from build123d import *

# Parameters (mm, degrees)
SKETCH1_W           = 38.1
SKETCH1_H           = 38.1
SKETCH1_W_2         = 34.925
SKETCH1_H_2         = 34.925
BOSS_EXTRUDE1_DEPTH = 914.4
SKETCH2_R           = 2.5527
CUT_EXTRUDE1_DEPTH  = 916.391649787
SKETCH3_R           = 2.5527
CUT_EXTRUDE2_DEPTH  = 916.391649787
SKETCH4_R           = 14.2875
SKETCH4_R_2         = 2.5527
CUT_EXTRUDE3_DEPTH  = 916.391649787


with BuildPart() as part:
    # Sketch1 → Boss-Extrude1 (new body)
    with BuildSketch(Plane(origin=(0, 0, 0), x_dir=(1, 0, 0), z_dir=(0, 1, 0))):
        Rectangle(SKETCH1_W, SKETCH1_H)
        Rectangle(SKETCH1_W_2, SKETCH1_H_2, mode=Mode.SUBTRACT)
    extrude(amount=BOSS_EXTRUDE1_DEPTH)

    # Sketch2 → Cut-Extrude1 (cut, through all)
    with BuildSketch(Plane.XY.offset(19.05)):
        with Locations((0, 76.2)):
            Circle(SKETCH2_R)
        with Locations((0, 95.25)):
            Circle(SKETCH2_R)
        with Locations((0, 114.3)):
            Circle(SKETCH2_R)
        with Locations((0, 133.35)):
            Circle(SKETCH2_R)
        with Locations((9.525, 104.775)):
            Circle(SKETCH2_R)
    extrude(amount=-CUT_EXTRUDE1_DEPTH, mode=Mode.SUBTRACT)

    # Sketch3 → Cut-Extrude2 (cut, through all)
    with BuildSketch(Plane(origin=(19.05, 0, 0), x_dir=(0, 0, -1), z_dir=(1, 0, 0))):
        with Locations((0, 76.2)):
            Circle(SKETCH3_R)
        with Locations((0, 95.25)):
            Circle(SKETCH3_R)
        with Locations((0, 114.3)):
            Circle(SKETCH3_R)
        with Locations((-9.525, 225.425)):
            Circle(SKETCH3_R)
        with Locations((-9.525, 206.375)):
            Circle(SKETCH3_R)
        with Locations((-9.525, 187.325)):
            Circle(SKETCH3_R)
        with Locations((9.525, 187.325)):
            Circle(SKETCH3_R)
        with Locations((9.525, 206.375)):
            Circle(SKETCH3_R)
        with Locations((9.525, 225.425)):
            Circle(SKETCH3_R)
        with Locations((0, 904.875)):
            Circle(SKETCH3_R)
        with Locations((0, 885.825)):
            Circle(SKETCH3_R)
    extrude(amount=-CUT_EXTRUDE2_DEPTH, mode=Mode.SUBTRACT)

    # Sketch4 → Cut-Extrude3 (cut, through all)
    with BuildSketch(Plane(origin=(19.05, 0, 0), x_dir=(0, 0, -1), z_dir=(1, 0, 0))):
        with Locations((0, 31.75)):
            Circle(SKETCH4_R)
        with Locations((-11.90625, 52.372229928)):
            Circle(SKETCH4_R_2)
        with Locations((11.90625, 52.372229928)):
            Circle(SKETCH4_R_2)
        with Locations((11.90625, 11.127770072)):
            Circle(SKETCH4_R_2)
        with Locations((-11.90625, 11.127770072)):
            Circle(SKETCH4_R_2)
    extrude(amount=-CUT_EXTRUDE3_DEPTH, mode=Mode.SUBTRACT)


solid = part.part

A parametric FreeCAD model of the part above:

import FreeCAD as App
import Part
import Sketcher

V = App.Vector
Q = App.Units.Quantity

doc = App.newDocument("Part")
params = doc.addObject("Spreadsheet::Sheet", "Params")
for row, (alias, value) in enumerate([
    ("sketch1_width", "1.5 in"),
    ("sketch1_width2", "1.375 in"),
    ("pad1_length", "36 in"),
    ("sketch2_diameter", "0.201 in"),
    ("sketch3_diameter", "0.201 in"),
    ("sketch4_diameter", "1.125 in"),
    ("sketch4_diameter2", "0.201 in"),
], start=1):
    params.set(f"A{row}", alias)
    params.set(f"B{row}", "=" + value)
    params.setAlias(f"B{row}", alias)

body = doc.addObject("PartDesign::Body", "Body")

# Sketch on XZ plane
sketch1 = doc.addObject("Sketcher::SketchObject", "Sketch")
body.addObject(sketch1)
sketch1.AttachmentSupport = (doc.XZ_Plane, [""])
sketch1.MapMode = "FlatFace"
sketch1.addGeometry([
    Part.LineSegment(V(-19, -19, 0), V(-19, 19, 0)),  # 0
    Part.LineSegment(V(-19, 19, 0), V(19, 19, 0)),  # 1
    Part.LineSegment(V(19, 19, 0), V(19, -19, 0)),  # 2
    Part.LineSegment(V(19, -19, 0), V(-19, -19, 0)),  # 3
    Part.LineSegment(V(17, 17, 0), V(-17, 17, 0)),  # 4
    Part.LineSegment(V(-17, 17, 0), V(-17, -17, 0)),  # 5
    Part.LineSegment(V(-17, -17, 0), V(17, -17, 0)),  # 6
    Part.LineSegment(V(17, -17, 0), V(17, 17, 0)),  # 7
], False)
sketch1.addConstraint([
    Sketcher.Constraint("Coincident", 0, 2, 1, 1),
    Sketcher.Constraint("Coincident", 1, 2, 2, 1),
    Sketcher.Constraint("Coincident", 2, 2, 3, 1),
    Sketcher.Constraint("Coincident", 3, 2, 0, 1),
    Sketcher.Constraint("Coincident", 4, 2, 5, 1),
    Sketcher.Constraint("Coincident", 5, 2, 6, 1),
    Sketcher.Constraint("Coincident", 6, 2, 7, 1),
    Sketcher.Constraint("Coincident", 7, 2, 4, 1),
    Sketcher.Constraint("Vertical", 0),
    Sketcher.Constraint("Horizontal", 1),
    Sketcher.Constraint("Vertical", 2),
    Sketcher.Constraint("Horizontal", 3),
    Sketcher.Constraint("Horizontal", 4),
    Sketcher.Constraint("Vertical", 5),
    Sketcher.Constraint("Horizontal", 6),
    Sketcher.Constraint("Vertical", 7),
    Sketcher.Constraint("Symmetric", 0, 2, 2, 2, -1, 1),
    Sketcher.Constraint("Symmetric", 4, 2, 6, 2, -1, 1),
    Sketcher.Constraint("Equal", 3, 0),
    Sketcher.Constraint("Equal", 6, 5),
    Sketcher.Constraint("DistanceX", 1, 1, 1, 2, Q("1.5 in")),
    Sketcher.Constraint("DistanceX", 4, 2, 4, 1, Q("1.375 in")),
])
sketch1.setExpression("Constraints[20]", "Params.sketch1_width")
sketch1.setExpression("Constraints[21]", "Params.sketch1_width2")
pad1 = doc.addObject("PartDesign::Pad", "Pad")
body.addObject(pad1)
pad1.Profile = sketch1
pad1.setExpression("Length", "Params.pad1_length")
pad1.Reversed = True

# Sketch on XY plane
sketch2 = doc.addObject("Sketcher::SketchObject", "Sketch001")
body.addObject(sketch2)
sketch2.AttachmentSupport = (doc.XY_Plane, [""])
sketch2.MapMode = "FlatFace"
sketch2.AttachmentOffset = App.Placement(V(0, 0, 0.75 * 25.4), App.Rotation())
sketch2.addGeometry([
    Part.Circle(V(0, 76.2, 0), V(0, 0, 1), 2.6),  # 0
    Part.Circle(V(0, 95.2, 0), V(0, 0, 1), 2.6),  # 1
    Part.Circle(V(0, 114.3, 0), V(0, 0, 1), 2.6),  # 2
    Part.Circle(V(0, 133.3, 0), V(0, 0, 1), 2.6),  # 3
    Part.Circle(V(9.5, 104.8, 0), V(0, 0, 1), 2.6),  # 4
], False)
sketch2.addConstraint([
    Sketcher.Constraint("Equal", 0, 1),
    Sketcher.Constraint("Equal", 1, 2),
    Sketcher.Constraint("Equal", 2, 3),
    Sketcher.Constraint("Equal", 3, 4),
    Sketcher.Constraint("PointOnObject", 0, 3, -2),
    Sketcher.Constraint("PointOnObject", 1, 3, -2),
    Sketcher.Constraint("PointOnObject", 2, 3, -2),
    Sketcher.Constraint("PointOnObject", 3, 3, -2),
    Sketcher.Constraint("Diameter", 0, Q("0.201 in")),
    Sketcher.Constraint("DistanceY", -1, 1, 0, 3, Q("3 in")),
    Sketcher.Constraint("DistanceY", -1, 1, 2, 3, Q("4.5 in")),
    Sketcher.Constraint("DistanceY", 1, 3, 3, 3, Q("1.5 in")),
    Sketcher.Constraint("DistanceY", -1, 1, 1, 3, Q("3.75 in")),
    Sketcher.Constraint("DistanceX", -1, 1, 4, 3, Q("0.375 in")),
    Sketcher.Constraint("DistanceY", -1, 1, 4, 3, Q("4.125 in")),
])
sketch2.setExpression("Constraints[8]", "Params.sketch2_diameter")
pocket1 = doc.addObject("PartDesign::Pocket", "Pocket")
body.addObject(pocket1)
pocket1.Profile = sketch2
pocket1.Type = "ThroughAll"

# Sketch on YZ plane
sketch3 = doc.addObject("Sketcher::SketchObject", "Sketch002")
body.addObject(sketch3)
sketch3.AttachmentSupport = (doc.YZ_Plane, [""])
sketch3.MapMode = "FlatFace"
sketch3.AttachmentOffset = App.Placement(V(0, 0, 0.75 * 25.4), App.Rotation())
sketch3.addGeometry([
    Part.Circle(V(76.2, 0, 0), V(0, 0, 1), 2.6),  # 0
    Part.Circle(V(95.2, 0, 0), V(0, 0, 1), 2.6),  # 1
    Part.Circle(V(114.3, 0, 0), V(0, 0, 1), 2.6),  # 2
    Part.Circle(V(225.4, 9.5, 0), V(0, 0, 1), 2.6),  # 3
    Part.Circle(V(206.4, 9.5, 0), V(0, 0, 1), 2.6),  # 4
    Part.Circle(V(187.3, 9.5, 0), V(0, 0, 1), 2.6),  # 5
    Part.Circle(V(187.3, -9.5, 0), V(0, 0, 1), 2.6),  # 6
    Part.Circle(V(206.4, -9.5, 0), V(0, 0, 1), 2.6),  # 7
    Part.Circle(V(225.4, -9.5, 0), V(0, 0, 1), 2.6),  # 8
    Part.Circle(V(904.9, 0, 0), V(0, 0, 1), 2.6),  # 9
    Part.Circle(V(885.8, 0, 0), V(0, 0, 1), 2.6),  # 10
], False)
sketch3.addConstraint([
    Sketcher.Constraint("Equal", 0, 1),
    Sketcher.Constraint("Equal", 1, 2),
    Sketcher.Constraint("Equal", 2, 3),
    Sketcher.Constraint("Equal", 3, 4),
    Sketcher.Constraint("Equal", 4, 5),
    Sketcher.Constraint("Equal", 5, 6),
    Sketcher.Constraint("Equal", 6, 7),
    Sketcher.Constraint("Equal", 7, 8),
    Sketcher.Constraint("Equal", 8, 9),
    Sketcher.Constraint("Equal", 9, 10),
    Sketcher.Constraint("Symmetric", 5, 3, 6, 3, -1),
    Sketcher.Constraint("Symmetric", 4, 3, 7, 3, -1),
    Sketcher.Constraint("Symmetric", 3, 3, 8, 3, -1),
    Sketcher.Constraint("PointOnObject", 0, 3, -1),
    Sketcher.Constraint("PointOnObject", 1, 3, -1),
    Sketcher.Constraint("PointOnObject", 2, 3, -1),
    Sketcher.Constraint("PointOnObject", 9, 3, -1),
    Sketcher.Constraint("PointOnObject", 10, 3, -1),
    Sketcher.Constraint("Horizontal", 3, 3, 4, 3),
    Sketcher.Constraint("Horizontal", 4, 3, 5, 3),
    Sketcher.Constraint("Diameter", 0, Q("0.201 in")),
    Sketcher.Constraint("DistanceX", -1, 1, 0, 3, Q("3 in")),
    Sketcher.Constraint("DistanceX", 3, 3, 10, 3, Q("26 in")),
    Sketcher.Constraint("DistanceX", -1, 1, 2, 3, Q("4.5 in")),
    Sketcher.Constraint("DistanceX", 5, 3, 3, 3, Q("1.5 in")),
    Sketcher.Constraint("DistanceX", 4, 3, 9, 3, Q("27.5 in")),
    Sketcher.Constraint("DistanceX", -1, 1, 1, 3, Q("3.75 in")),
    Sketcher.Constraint("DistanceX", 4, 3, 3, 3, Q("0.75 in")),
    Sketcher.Constraint("DistanceY", 6, 3, 5, 3, Q("0.75 in")),
    Sketcher.Constraint("DistanceX", -1, 1, 3, 3, Q("8.875 in")),
])
sketch3.setExpression("Constraints[20]", "Params.sketch3_diameter")
pocket2 = doc.addObject("PartDesign::Pocket", "Pocket001")
body.addObject(pocket2)
pocket2.Profile = sketch3
pocket2.Type = "ThroughAll"

# Sketch on YZ plane
sketch4 = doc.addObject("Sketcher::SketchObject", "Sketch003")
body.addObject(sketch4)
sketch4.AttachmentSupport = (doc.YZ_Plane, [""])
sketch4.MapMode = "FlatFace"
sketch4.AttachmentOffset = App.Placement(V(0, 0, 0.75 * 25.4), App.Rotation())
sketch4.addGeometry([
    Part.Circle(V(31.8, 0, 0), V(0, 0, 1), 14.3),  # 0
    Part.Circle(V(52.4, 11.9, 0), V(0, 0, 1), 2.6),  # 1
    Part.Circle(V(52.4, -11.9, 0), V(0, 0, 1), 2.6),  # 2
    Part.Circle(V(11.1, -11.9, 0), V(0, 0, 1), 2.6),  # 3
    Part.Circle(V(11.1, 11.9, 0), V(0, 0, 1), 2.6),  # 4
], False)
sketch4.addConstraint([
    Sketcher.Constraint("Equal", 1, 2),
    Sketcher.Constraint("Equal", 2, 3),
    Sketcher.Constraint("Equal", 3, 4),
    Sketcher.Constraint("Symmetric", 1, 3, 2, 3, -1),
    Sketcher.Constraint("Symmetric", 3, 3, 4, 3, -1),
    Sketcher.Constraint("PointOnObject", 0, 3, -1),
    Sketcher.Constraint("Horizontal", 2, 3, 3, 3),
    Sketcher.Constraint("Diameter", 0, Q("1.125 in")),
    Sketcher.Constraint("Diameter", 1, Q("0.201 in")),
    Sketcher.Constraint("DistanceX", -1, 1, 0, 3, Q("1.25 in")),
    Sketcher.Constraint("DistanceY", -1, 1, 1, 3, Q("0.46875 in")),
    Sketcher.Constraint("DistanceX", -1, 1, 1, 3, Q("52.37223 mm")),
    Sketcher.Constraint("DistanceX", -1, 1, 3, 3, Q("11.12777 mm")),
])
sketch4.setExpression("Constraints[7]", "Params.sketch4_diameter")
sketch4.setExpression("Constraints[8]", "Params.sketch4_diameter2")
pocket3 = doc.addObject("PartDesign::Pocket", "Pocket002")
body.addObject(pocket3)
pocket3.Profile = sketch4
pocket3.Type = "ThroughAll"

doc.recompute()
